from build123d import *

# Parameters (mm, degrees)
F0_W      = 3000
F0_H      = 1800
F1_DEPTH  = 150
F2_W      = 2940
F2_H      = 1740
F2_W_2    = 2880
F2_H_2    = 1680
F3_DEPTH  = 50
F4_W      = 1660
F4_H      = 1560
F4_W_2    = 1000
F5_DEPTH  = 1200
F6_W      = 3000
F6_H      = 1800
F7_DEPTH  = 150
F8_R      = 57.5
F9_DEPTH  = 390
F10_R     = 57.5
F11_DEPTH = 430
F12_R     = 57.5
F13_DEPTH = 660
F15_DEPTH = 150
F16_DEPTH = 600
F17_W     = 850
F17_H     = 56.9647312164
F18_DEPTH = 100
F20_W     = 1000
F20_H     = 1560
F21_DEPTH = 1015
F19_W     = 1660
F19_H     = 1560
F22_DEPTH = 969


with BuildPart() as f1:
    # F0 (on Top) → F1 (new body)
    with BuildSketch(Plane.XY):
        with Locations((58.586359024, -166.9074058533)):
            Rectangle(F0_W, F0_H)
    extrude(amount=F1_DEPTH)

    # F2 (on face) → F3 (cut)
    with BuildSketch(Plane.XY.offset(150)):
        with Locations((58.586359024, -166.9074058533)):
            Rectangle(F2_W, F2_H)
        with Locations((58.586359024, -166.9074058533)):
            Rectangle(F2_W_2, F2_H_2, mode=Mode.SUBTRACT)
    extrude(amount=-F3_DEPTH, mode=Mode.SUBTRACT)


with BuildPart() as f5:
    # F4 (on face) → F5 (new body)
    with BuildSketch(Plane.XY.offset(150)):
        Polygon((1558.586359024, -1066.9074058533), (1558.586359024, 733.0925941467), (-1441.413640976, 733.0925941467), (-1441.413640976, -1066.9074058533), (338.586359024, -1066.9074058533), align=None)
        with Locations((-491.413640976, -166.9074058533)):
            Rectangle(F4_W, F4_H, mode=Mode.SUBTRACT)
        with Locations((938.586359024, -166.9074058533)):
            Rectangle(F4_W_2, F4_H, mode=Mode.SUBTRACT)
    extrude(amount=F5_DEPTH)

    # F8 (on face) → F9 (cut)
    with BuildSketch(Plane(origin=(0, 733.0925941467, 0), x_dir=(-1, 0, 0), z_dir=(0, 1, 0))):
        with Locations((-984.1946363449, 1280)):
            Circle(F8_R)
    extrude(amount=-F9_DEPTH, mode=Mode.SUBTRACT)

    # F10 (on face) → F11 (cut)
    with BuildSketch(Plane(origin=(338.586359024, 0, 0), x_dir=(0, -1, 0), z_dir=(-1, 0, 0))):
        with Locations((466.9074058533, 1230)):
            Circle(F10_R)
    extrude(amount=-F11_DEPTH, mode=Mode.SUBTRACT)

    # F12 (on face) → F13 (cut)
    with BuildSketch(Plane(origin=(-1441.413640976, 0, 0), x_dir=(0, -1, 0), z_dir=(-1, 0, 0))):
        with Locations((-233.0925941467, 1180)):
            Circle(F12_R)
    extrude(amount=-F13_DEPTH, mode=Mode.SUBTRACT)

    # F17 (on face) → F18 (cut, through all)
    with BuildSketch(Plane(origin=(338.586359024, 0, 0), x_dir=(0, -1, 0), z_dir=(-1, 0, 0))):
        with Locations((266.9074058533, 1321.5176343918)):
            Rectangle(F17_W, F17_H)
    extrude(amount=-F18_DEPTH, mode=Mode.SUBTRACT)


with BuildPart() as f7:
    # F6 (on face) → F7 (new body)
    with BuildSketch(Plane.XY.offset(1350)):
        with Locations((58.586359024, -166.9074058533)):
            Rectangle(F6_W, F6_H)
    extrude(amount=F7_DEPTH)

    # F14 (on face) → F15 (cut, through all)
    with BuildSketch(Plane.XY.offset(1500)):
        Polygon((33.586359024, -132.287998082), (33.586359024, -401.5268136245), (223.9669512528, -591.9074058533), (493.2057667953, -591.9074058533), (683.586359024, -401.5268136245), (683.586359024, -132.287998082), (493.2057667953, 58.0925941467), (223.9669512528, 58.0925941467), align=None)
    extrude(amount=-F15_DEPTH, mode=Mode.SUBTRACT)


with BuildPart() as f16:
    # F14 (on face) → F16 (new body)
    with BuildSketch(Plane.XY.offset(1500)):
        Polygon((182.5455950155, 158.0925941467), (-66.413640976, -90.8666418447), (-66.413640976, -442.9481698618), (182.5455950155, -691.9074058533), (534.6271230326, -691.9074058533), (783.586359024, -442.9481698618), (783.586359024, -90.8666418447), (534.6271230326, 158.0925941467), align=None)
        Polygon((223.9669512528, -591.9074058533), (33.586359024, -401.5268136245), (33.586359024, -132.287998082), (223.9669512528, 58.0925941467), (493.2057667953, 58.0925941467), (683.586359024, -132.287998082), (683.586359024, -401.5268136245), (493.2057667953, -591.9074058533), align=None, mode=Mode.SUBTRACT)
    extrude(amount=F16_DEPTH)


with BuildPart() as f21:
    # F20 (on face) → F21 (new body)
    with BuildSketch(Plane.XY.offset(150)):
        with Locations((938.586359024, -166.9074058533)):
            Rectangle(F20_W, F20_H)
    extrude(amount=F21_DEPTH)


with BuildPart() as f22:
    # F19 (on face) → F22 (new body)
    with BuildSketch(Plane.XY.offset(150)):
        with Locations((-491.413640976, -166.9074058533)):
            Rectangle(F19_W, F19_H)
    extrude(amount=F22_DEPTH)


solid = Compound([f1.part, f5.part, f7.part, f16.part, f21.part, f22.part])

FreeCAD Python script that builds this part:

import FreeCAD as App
import Part
import Sketcher

V = App.Vector
Q = App.Units.Quantity


def add_polygon(sketch, points):
    """Adds a closed chain of lines whose ends are joined by coincident constraints."""
    first, n = sketch.GeometryCount, len(points)
    for a, b in zip(points, points[1:] + points[:1]):
        sketch.addGeometry(Part.LineSegment(App.Vector(*a, 0), App.Vector(*b, 0)), False)
    for i in range(n):
        sketch.addConstraint(Sketcher.Constraint("Coincident", first + i, 2, first + (i + 1) % n, 1))

doc = App.newDocument("Part")
body = doc.addObject("PartDesign::Body", "Body")

# Sketch on XY plane
sketch1 = doc.addObject("Sketcher::SketchObject", "Sketch")
body.addObject(sketch1)
sketch1.AttachmentSupport = (doc.XY_Plane, [""])
sketch1.MapMode = "FlatFace"
add_polygon(sketch1, [(-1441, 733), (-1441, -1067), (1559, -1067), (1559, 733)])  # lines 0-3
sketch1.addConstraint(Sketcher.Constraint("Vertical", 0))
sketch1.addConstraint(Sketcher.Constraint("Horizontal", 1))
sketch1.addConstraint(Sketcher.Constraint("Vertical", 2))
sketch1.addConstraint(Sketcher.Constraint("Horizontal", 3))
sketch1.addConstraint(Sketcher.Constraint("DistanceX", 1, 1, 1, 2, Q("3000 mm")))
sketch1.addConstraint(Sketcher.Constraint("DistanceY", 0, 2, 0, 1, Q("1800 mm")))
sketch1.addConstraint(Sketcher.Constraint("DistanceX", 0, 2, -1, 1, Q("1441.413641 mm")))
sketch1.addConstraint(Sketcher.Constraint("DistanceY", 0, 2, -1, 1, Q("1066.907406 mm")))
pad1 = doc.addObject("PartDesign::Pad", "Pad")
body.addObject(pad1)
pad1.Profile = sketch1
pad1.Length = 150

# Sketch on XY plane
sketch2 = doc.addObject("Sketcher::SketchObject", "Sketch001")
body.addObject(sketch2)
sketch2.AttachmentSupport = (doc.XY_Plane, [""])
sketch2.MapMode = "FlatFace"
sketch2.AttachmentOffset = App.Placement(V(0, 0, 150), App.Rotation())
add_polygon(sketch2, [(-1411, 703), (-1411, -1037), (1529, -1037), (1529, 703)])  # lines 0-3
add_polygon(sketch2, [(1499, -1007), (-1381, -1007), (-1381, 673), (1499, 673)])  # lines 4-7
sketch2.addConstraint(Sketcher.Constraint("Vertical", 0))
sketch2.addConstraint(Sketcher.Constraint("Horizontal", 1))
sketch2.addConstraint(Sketcher.Constraint("Vertical", 2))
sketch2.addConstraint(Sketcher.Constraint("Horizontal", 3))
sketch2.addConstraint(Sketcher.Constraint("Horizontal", 4))
sketch2.addConstraint(Sketcher.Constraint("Vertical", 5))
sketch2.addConstraint(Sketcher.Constraint("Horizontal", 6))
sketch2.addConstraint(Sketcher.Constraint("Vertical", 7))
sketch2.addConstraint(Sketcher.Constraint("DistanceX", 1, 1, 1, 2, Q("2940 mm")))
sketch2.addConstraint(Sketcher.Constraint("DistanceX", 4, 2, 4, 1, Q("2880 mm")))
sketch2.addConstraint(Sketcher.Constraint("DistanceY", 0, 2, 0, 1, Q("1740 mm")))
sketch2.addConstraint(Sketcher.Constraint("DistanceY", 5, 1, 5, 2, Q("1680 mm")))
sketch2.addConstraint(Sketcher.Constraint("DistanceX", 0, 2, 4, 2, Q("30 mm")))
sketch2.addConstraint(Sketcher.Constraint("DistanceY", 0, 2, 4, 2, Q("30 mm")))
sketch2.addConstraint(Sketcher.Constraint("DistanceX", 0, 2, -1, 1, Q("1411.413641 mm")))
sketch2.addConstraint(Sketcher.Constraint("DistanceY", 0, 2, -1, 1, Q("1036.907406 mm")))
pocket1 = doc.addObject("PartDesign::Pocket", "Pocket")
body.addObject(pocket1)
pocket1.Profile = sketch2
pocket1.Length = 50
body2 = doc.addObject("PartDesign::Body", "Body001")

# Sketch on XY plane
sketch3 = doc.addObject("Sketcher::SketchObject", "Sketch002")
body2.addObject(sketch3)
sketch3.AttachmentSupport = (doc.getObject("XY_Plane001"), [""])
sketch3.MapMode = "FlatFace"
sketch3.AttachmentOffset = App.Placement(V(0, 0, 150), App.Rotation())
add_polygon(sketch3, [(1559, -1067), (1559, 733), (-1441, 733), (-1441, -1067)])  # lines 0-3
add_polygon(sketch3, [(339, -947), (-1321, -947), (-1321, 613), (339, 613)])  # lines 4-7
add_polygon(sketch3, [(1439, -947), (439, -947), (439, 613), (1439, 613)])  # lines 8-11
sketch3.addConstraint(Sketcher.Constraint("Vertical", 0))
sketch3.addConstraint(Sketcher.Constraint("Horizontal", 1))
sketch3.addConstraint(Sketcher.Constraint("Vertical", 2))
sketch3.addConstraint(Sketcher.Constraint("Horizontal", 3))
sketch3.addConstraint(Sketcher.Constraint("Horizontal", 4))
sketch3.addConstraint(Sketcher.Constraint("Vertical", 5))
sketch3.addConstraint(Sketcher.Constraint("Horizontal", 6))
sketch3.addConstraint(Sketcher.Constraint("Vertical", 7))
sketch3.addConstraint(Sketcher.Constraint("Horizontal", 8))
sketch3.addConstraint(Sketcher.Constraint("Vertical", 9))
sketch3.addConstraint(Sketcher.Constraint("Horizontal", 10))
sketch3.addConstraint(Sketcher.Constraint("Vertical", 11))
sketch3.addConstraint(Sketcher.Constraint("Horizontal", 7, 2, 8, 2))
sketch3.addConstraint(Sketcher.Constraint("Horizontal", 6, 2, 9, 2))
sketch3.addConstraint(Sketcher.Constraint("DistanceX", 1, 2, 1, 1, Q("3000 mm")))
sketch3.addConstraint(Sketcher.Constraint("DistanceX", 4, 2, 4, 1, Q("1660 mm")))
sketch3.addConstraint(Sketcher.Constraint("DistanceX", 8, 2, 8, 1, Q("1000 mm")))
sketch3.addConstraint(Sketcher.Constraint("DistanceY", 0, 1, 0, 2, Q("1800 mm")))
sketch3.addConstraint(Sketcher.Constraint("DistanceY", 5, 1, 5, 2, Q("1560 mm")))
sketch3.addConstraint(Sketcher.Constraint("DistanceX", 2, 2, 4, 2, Q("120 mm")))
sketch3.addConstraint(Sketcher.Constraint("DistanceY", 2, 2, 4, 2, Q("120 mm")))
sketch3.addConstraint(Sketcher.Constraint("DistanceX", 7, 2, 8, 2, Q("100 mm")))
sketch3.addConstraint(Sketcher.Constraint("DistanceX", -1, 1, 0, 2, Q("1558.586359 mm")))
sketch3.addConstraint(Sketcher.Constraint("DistanceY", -1, 1, 0, 2, Q("733.092594 mm")))
pad2 = doc.addObject("PartDesign::Pad", "Pad001")
body2.addObject(pad2)
pad2.Profile = sketch3
pad2.Length = 1200

# Sketch on XZ plane
sketch4 = doc.addObject("Sketcher::SketchObject", "Sketch003")
body2.addObject(sketch4)
sketch4.AttachmentSupport = (doc.getObject("XZ_Plane001"), [""])
sketch4.MapMode = "FlatFace"
sketch4.AttachmentOffset = App.Placement(V(0, 0, -733.092594), App.Rotation())
sketch4.addGeometry(Part.Circle(V(984, 1280, 0), V(0, 0, 1), 58), False)
sketch4.addConstraint(Sketcher.Constraint("Diameter", 0, Q("115 mm")))
sketch4.addConstraint(Sketcher.Constraint("DistanceY", -1, 1, 0, 3, Q("1280 mm")))
sketch4.addConstraint(Sketcher.Constraint("DistanceX", -1, 1, 0, 3, Q("984.194636 mm")))
pocket2 = doc.addObject("PartDesign::Pocket", "Pocket001")
body2.addObject(pocket2)
pocket2.Profile = sketch4
pocket2.Length = 390
pocket2.Reversed = True

# Sketch on YZ plane
sketch5 = doc.addObject("Sketcher::SketchObject", "Sketch004")
body2.addObject(sketch5)
sketch5.AttachmentSupport = (doc.getObject("YZ_Plane001"), [""])
sketch5.MapMode = "FlatFace"
sketch5.AttachmentOffset = App.Placement(V(0, 0, 338.586359), App.Rotation())
sketch5.addGeometry(Part.Circle(V(-467, 1230, 0), V(0, 0, 1), 58), False)
sketch5.addConstraint(Sketcher.Constraint("Diameter", 0, Q("115 mm")))
sketch5.addConstraint(Sketcher.Constraint("DistanceY", -1, 1, 0, 3, Q("1230 mm")))
sketch5.addConstraint(Sketcher.Constraint("DistanceX", 0, 3, -1, 1, Q("466.907406 mm")))
pocket3 = doc.addObject("PartDesign::Pocket", "Pocket002")
body2.addObject(pocket3)
pocket3.Profile = sketch5
pocket3.Length = 430
pocket3.Reversed = True

# Sketch on YZ plane
sketch6 = doc.addObject("Sketcher::SketchObject", "Sketch005")
body2.addObject(sketch6)
sketch6.AttachmentSupport = (doc.getObject("YZ_Plane001"), [""])
sketch6.MapMode = "FlatFace"
sketch6.AttachmentOffset = App.Placement(V(0, 0, -1441.413641), App.Rotation())
sketch6.addGeometry(Part.Circle(V(233, 1180, 0), V(0, 0, 1), 58), False)
sketch6.addConstraint(Sketcher.Constraint("Diameter", 0, Q("115 mm")))
sketch6.addConstraint(Sketcher.Constraint("DistanceY", -1, 1, 0, 3, Q("1180 mm")))
sketch6.addConstraint(Sketcher.Constraint("DistanceX", -1, 1, 0, 3, Q("233.092594 mm")))
pocket4 = doc.addObject("PartDesign::Pocket", "Pocket003")
body2.addObject(pocket4)
pocket4.Profile = sketch6
pocket4.Length = 660
pocket4.Reversed = True

# Sketch on YZ plane
sketch7 = doc.addObject("Sketcher::SketchObject", "Sketch006")
body2.addObject(sketch7)
sketch7.AttachmentSupport = (doc.getObject("YZ_Plane001"), [""])
sketch7.MapMode = "FlatFace"
sketch7.AttachmentOffset = App.Placement(V(0, 0, 338.586359), App.Rotation())
add_polygon(sketch7, [(158, 1350), (158, 1293), (-692, 1293), (-692, 1350)])  # lines 0-3
sketch7.addConstraint(Sketcher.Constraint("Vertical", 0))
sketch7.addConstraint(Sketcher.Constraint("Horizontal", 1))
sketch7.addConstraint(Sketcher.Constraint("Vertical", 2))
sketch7.addConstraint(Sketcher.Constraint("Horizontal", 3))
sketch7.addConstraint(Sketcher.Constraint("DistanceX", 1, 2, 1, 1, Q("850 mm")))
sketch7.addConstraint(Sketcher.Constraint("DistanceY", -1, 1, 2, 2, Q("1350 mm")))
sketch7.addConstraint(Sketcher.Constraint("DistanceY", 0, 2, 0, 1, Q("56.964731 mm")))
sketch7.addConstraint(Sketcher.Constraint("DistanceX", -1, 1, 0, 2, Q("158.092594 mm")))
pocket5 = doc.addObject("PartDesign::Pocket", "Pocket004")
body2.addObject(pocket5)
pocket5.Profile = sketch7
pocket5.Length = 100
pocket5.Reversed = True
body3 = doc.addObject("PartDesign::Body", "Body002")

# Sketch on XY plane
sketch8 = doc.addObject("Sketcher::SketchObject", "Sketch007")
body3.addObject(sketch8)
sketch8.AttachmentSupport = (doc.getObject("XY_Plane002"), [""])
sketch8.MapMode = "FlatFace"
sketch8.AttachmentOffset = App.Placement(V(0, 0, 1350), App.Rotation())
add_polygon(sketch8, [(-1441, 733), (-1441, -1067), (1559, -1067), (1559, 733)])  # lines 0-3
sketch8.addConstraint(Sketcher.Constraint("Vertical", 0))
sketch8.addConstraint(Sketcher.Constraint("Horizontal", 1))
sketch8.addConstraint(Sketcher.Constraint("Vertical", 2))
sketch8.addConstraint(Sketcher.Constraint("Horizontal", 3))
sketch8.addConstraint(Sketcher.Constraint("DistanceX", 1, 1, 1, 2, Q("3000 mm")))
sketch8.addConstraint(Sketcher.Constraint("DistanceY", 0, 2, 0, 1, Q("1800 mm")))
sketch8.addConstraint(Sketcher.Constraint("DistanceX", 0, 2, -1, 1, Q("1441.413641 mm")))
sketch8.addConstraint(Sketcher.Constraint("DistanceY", 0, 2, -1, 1, Q("1066.907406 mm")))
pad3 = doc.addObject("PartDesign::Pad", "Pad002")
body3.addObject(pad3)
pad3.Profile = sketch8
pad3.Length = 150

# Sketch on XY plane
sketch9 = doc.addObject("Sketcher::SketchObject", "Sketch008")
body3.addObject(sketch9)
sketch9.AttachmentSupport = (doc.getObject("XY_Plane002"), [""])
sketch9.MapMode = "FlatFace"
sketch9.AttachmentOffset = App.Placement(V(0, 0, 1500), App.Rotation())
add_polygon(sketch9, [(34, -132), (34, -402), (224, -592), (493, -592), (684, -402), (684, -132), (493, 58), (224, 58)])  # lines 0-7
sketch9.addConstraint(Sketcher.Constraint("Vertical", 0))
sketch9.addConstraint(Sketcher.Constraint("Horizontal", 2))
sketch9.addConstraint(Sketcher.Constraint("Vertical", 4))
sketch9.addConstraint(Sketcher.Constraint("Horizontal", 6))
sketch9.addConstraint(Sketcher.Constraint("Perpendicular", 1, 3))
sketch9.addConstraint(Sketcher.Constraint("Perpendicular", 3, 5))
sketch9.addConstraint(Sketcher.Constraint("Perpendicular", 5, 7))
sketch9.addConstraint(Sketcher.Constraint("Horizontal", 0, 2, 3, 2))
sketch9.addConstraint(Sketcher.Constraint("Horizontal", 4, 2, 7, 2))
sketch9.addConstraint(Sketcher.Constraint("Vertical", 2, 2, 5, 2))
sketch9.addConstraint(Sketcher.Constraint("Vertical", 1, 2, 6, 2))
sketch9.addConstraint(Sketcher.Constraint("Equal", 6, 0))
sketch9.addConstraint(Sketcher.Constraint("DistanceX", 0, 2, 3, 2, Q("650 mm")))
sketch9.addConstraint(Sketcher.Constraint("DistanceY", 4, 2, -1, 1, Q("132.287998 mm")))
sketch9.addConstraint(Sketcher.Constraint("DistanceX", 2, 1, 2, 2, Q("269.238816 mm")))
sketch9.addConstraint(Sketcher.Constraint("DistanceX", -1, 1, 0, 2, Q("33.586359 mm")))
pocket6 = doc.addObject("PartDesign::Pocket", "Pocket005")
body3.addObject(pocket6)
pocket6.Profile = sketch9
pocket6.Type = "ThroughAll"
body4 = doc.addObject("PartDesign::Body", "Body003")

# Sketch on XY plane
sketch10 = doc.addObject("Sketcher::SketchObject", "Sketch009")
body4.addObject(sketch10)
sketch10.AttachmentSupport = (doc.getObject("XY_Plane003"), [""])
sketch10.MapMode = "FlatFace"
sketch10.AttachmentOffset = App.Placement(V(0, 0, 1500), App.Rotation())
add_polygon(sketch10, [(183, 158), (-66, -91), (-66, -443), (183, -692), (535, -692), (784, -443), (784, -91), (535, 158)])  # lines 0-7
add_polygon(sketch10, [(493, -592), (224, -592), (34, -402), (34, -132), (224, 58), (493, 58), (684, -132), (684, -402)])  # lines 8-15
sketch10.addConstraint(Sketcher.Constraint("Vertical", 1))
sketch10.addConstraint(Sketcher.Constraint("Horizontal", 3))
sketch10.addConstraint(Sketcher.Constraint("Vertical", 5))
sketch10.addConstraint(Sketcher.Constraint("Horizontal", 7))
sketch10.addConstraint(Sketcher.Constraint("Horizontal", 8))
sketch10.addConstraint(Sketcher.Constraint("Vertical", 10))
sketch10.addConstraint(Sketcher.Constraint("Horizontal", 12))
sketch10.addConstraint(Sketcher.Constraint("Vertical", 14))
sketch10.addConstraint(Sketcher.Constraint("Perpendicular", 0, 2))
sketch10.addConstraint(Sketcher.Constraint("Perpendicular", 2, 4))
sketch10.addConstraint(Sketcher.Constraint("Perpendicular", 4, 6))
sketch10.addConstraint(Sketcher.Constraint("Parallel", 6, 9))
sketch10.addConstraint(Sketcher.Constraint("Perpendicular", 9, 11))
sketch10.addConstraint(Sketcher.Constraint("Perpendicular", 11, 13))
sketch10.addConstraint(Sketcher.Constraint("Perpendicular", 13, 15))
sketch10.addConstraint(Sketcher.Constraint("Horizontal", 1, 2, 4, 2))
sketch10.addConstraint(Sketcher.Constraint("Horizontal", 0, 2, 5, 2))
sketch10.addConstraint(Sketcher.Constraint("Horizontal", 10, 2, 13, 2))
sketch10.addConstraint(Sketcher.Constraint("Horizontal", 9, 2, 14, 2))
sketch10.addConstraint(Sketcher.Constraint("Vertical", 3, 2, 6, 2))
sketch10.addConstraint(Sketcher.Constraint("Vertical", 2, 2, 7, 2))
sketch10.addConstraint(Sketcher.Constraint("Vertical", 8, 2, 11, 2))
sketch10.addConstraint(Sketcher.Constraint("Equal", 7, 1))
sketch10.addConstraint(Sketcher.Constraint("Equal", 12, 10))
sketch10.addConstraint(Sketcher.Constraint("DistanceX", 1, 2, 4, 2, Q("850 mm")))
sketch10.addConstraint(Sketcher.Constraint("DistanceY", 2, 2, 8, 2, Q("100 mm")))
sketch10.addConstraint(Sketcher.Constraint("DistanceX", 1, 2, 9, 2, Q("100 mm")))
sketch10.addConstraint(Sketcher.Constraint("DistanceY", 11, 2, 7, 2, Q("100 mm")))
sketch10.addConstraint(Sketcher.Constraint("DistanceY", 10, 2, -1, 1, Q("132.287998 mm")))
sketch10.addConstraint(Sketcher.Constraint("DistanceX", 3, 1, 3, 2, Q("352.081528 mm")))
sketch10.addConstraint(Sketcher.Constraint("DistanceX", 8, 2, 8, 1, Q("269.238816 mm")))
sketch10.addConstraint(Sketcher.Constraint("DistanceX", 0, 2, -1, 1, Q("66.413641 mm")))
pad4 = doc.addObject("PartDesign::Pad", "Pad003")
body4.addObject(pad4)
pad4.Profile = sketch10
pad4.Length = 600
body5 = doc.addObject("PartDesign::Body", "Body004")

# Sketch on XY plane
sketch11 = doc.addObject("Sketcher::SketchObject", "Sketch010")
body5.addObject(sketch11)
sketch11.AttachmentSupport = (doc.getObject("XY_Plane004"), [""])
sketch11.MapMode = "FlatFace"
sketch11.AttachmentOffset = App.Placement(V(0, 0, 150), App.Rotation())
add_polygon(sketch11, [(439, 613), (439, -947), (1439, -947), (1439, 613)])  # lines 0-3
sketch11.addConstraint(Sketcher.Constraint("Vertical", 0))
sketch11.addConstraint(Sketcher.Constraint("Horizontal", 1))
sketch11.addConstraint(Sketcher.Constraint("Vertical", 2))
sketch11.addConstraint(Sketcher.Constraint("Horizontal", 3))
sketch11.addConstraint(Sketcher.Constraint("DistanceX", 1, 1, 1, 2, Q("1000 mm")))
sketch11.addConstraint(Sketcher.Constraint("DistanceY", 0, 2, 0, 1, Q("1560 mm")))
sketch11.addConstraint(Sketcher.Constraint("DistanceX", -1, 1, 0, 2, Q("438.586359 mm")))
sketch11.addConstraint(Sketcher.Constraint("DistanceY", 0, 2, -1, 1, Q("946.907406 mm")))
pad5 = doc.addObject("PartDesign::Pad", "Pad004")
body5.addObject(pad5)
pad5.Profile = sketch11
pad5.Length = 1015
body6 = doc.addObject("PartDesign::Body", "Body005")

# Sketch on XY plane
sketch12 = doc.addObject("Sketcher::SketchObject", "Sketch011")
body6.addObject(sketch12)
sketch12.AttachmentSupport = (doc.getObject("XY_Plane005"), [""])
sketch12.MapMode = "FlatFace"
sketch12.AttachmentOffset = App.Placement(V(0, 0, 150), App.Rotation())
add_polygon(sketch12, [(-1321, 613), (-1321, -947), (339, -947), (339, 613)])  # lines 0-3
sketch12.addConstraint(Sketcher.Constraint("Vertical", 0))
sketch12.addConstraint(Sketcher.Constraint("Horizontal", 1))
sketch12.addConstraint(Sketcher.Constraint("Vertical", 2))
sketch12.addConstraint(Sketcher.Constraint("Horizontal", 3))
sketch12.addConstraint(Sketcher.Constraint("DistanceX", 1, 1, 1, 2, Q("1660 mm")))
sketch12.addConstraint(Sketcher.Constraint("DistanceY", 0, 2, 0, 1, Q("1560 mm")))
sketch12.addConstraint(Sketcher.Constraint("DistanceX", 0, 2, -1, 1, Q("1321.413641 mm")))
sketch12.addConstraint(Sketcher.Constraint("DistanceY", 0, 2, -1, 1, Q("946.907406 mm")))
pad6 = doc.addObject("PartDesign::Pad", "Pad005")
body6.addObject(pad6)
pad6.Profile = sketch12
pad6.Length = 969

doc.recompute()
